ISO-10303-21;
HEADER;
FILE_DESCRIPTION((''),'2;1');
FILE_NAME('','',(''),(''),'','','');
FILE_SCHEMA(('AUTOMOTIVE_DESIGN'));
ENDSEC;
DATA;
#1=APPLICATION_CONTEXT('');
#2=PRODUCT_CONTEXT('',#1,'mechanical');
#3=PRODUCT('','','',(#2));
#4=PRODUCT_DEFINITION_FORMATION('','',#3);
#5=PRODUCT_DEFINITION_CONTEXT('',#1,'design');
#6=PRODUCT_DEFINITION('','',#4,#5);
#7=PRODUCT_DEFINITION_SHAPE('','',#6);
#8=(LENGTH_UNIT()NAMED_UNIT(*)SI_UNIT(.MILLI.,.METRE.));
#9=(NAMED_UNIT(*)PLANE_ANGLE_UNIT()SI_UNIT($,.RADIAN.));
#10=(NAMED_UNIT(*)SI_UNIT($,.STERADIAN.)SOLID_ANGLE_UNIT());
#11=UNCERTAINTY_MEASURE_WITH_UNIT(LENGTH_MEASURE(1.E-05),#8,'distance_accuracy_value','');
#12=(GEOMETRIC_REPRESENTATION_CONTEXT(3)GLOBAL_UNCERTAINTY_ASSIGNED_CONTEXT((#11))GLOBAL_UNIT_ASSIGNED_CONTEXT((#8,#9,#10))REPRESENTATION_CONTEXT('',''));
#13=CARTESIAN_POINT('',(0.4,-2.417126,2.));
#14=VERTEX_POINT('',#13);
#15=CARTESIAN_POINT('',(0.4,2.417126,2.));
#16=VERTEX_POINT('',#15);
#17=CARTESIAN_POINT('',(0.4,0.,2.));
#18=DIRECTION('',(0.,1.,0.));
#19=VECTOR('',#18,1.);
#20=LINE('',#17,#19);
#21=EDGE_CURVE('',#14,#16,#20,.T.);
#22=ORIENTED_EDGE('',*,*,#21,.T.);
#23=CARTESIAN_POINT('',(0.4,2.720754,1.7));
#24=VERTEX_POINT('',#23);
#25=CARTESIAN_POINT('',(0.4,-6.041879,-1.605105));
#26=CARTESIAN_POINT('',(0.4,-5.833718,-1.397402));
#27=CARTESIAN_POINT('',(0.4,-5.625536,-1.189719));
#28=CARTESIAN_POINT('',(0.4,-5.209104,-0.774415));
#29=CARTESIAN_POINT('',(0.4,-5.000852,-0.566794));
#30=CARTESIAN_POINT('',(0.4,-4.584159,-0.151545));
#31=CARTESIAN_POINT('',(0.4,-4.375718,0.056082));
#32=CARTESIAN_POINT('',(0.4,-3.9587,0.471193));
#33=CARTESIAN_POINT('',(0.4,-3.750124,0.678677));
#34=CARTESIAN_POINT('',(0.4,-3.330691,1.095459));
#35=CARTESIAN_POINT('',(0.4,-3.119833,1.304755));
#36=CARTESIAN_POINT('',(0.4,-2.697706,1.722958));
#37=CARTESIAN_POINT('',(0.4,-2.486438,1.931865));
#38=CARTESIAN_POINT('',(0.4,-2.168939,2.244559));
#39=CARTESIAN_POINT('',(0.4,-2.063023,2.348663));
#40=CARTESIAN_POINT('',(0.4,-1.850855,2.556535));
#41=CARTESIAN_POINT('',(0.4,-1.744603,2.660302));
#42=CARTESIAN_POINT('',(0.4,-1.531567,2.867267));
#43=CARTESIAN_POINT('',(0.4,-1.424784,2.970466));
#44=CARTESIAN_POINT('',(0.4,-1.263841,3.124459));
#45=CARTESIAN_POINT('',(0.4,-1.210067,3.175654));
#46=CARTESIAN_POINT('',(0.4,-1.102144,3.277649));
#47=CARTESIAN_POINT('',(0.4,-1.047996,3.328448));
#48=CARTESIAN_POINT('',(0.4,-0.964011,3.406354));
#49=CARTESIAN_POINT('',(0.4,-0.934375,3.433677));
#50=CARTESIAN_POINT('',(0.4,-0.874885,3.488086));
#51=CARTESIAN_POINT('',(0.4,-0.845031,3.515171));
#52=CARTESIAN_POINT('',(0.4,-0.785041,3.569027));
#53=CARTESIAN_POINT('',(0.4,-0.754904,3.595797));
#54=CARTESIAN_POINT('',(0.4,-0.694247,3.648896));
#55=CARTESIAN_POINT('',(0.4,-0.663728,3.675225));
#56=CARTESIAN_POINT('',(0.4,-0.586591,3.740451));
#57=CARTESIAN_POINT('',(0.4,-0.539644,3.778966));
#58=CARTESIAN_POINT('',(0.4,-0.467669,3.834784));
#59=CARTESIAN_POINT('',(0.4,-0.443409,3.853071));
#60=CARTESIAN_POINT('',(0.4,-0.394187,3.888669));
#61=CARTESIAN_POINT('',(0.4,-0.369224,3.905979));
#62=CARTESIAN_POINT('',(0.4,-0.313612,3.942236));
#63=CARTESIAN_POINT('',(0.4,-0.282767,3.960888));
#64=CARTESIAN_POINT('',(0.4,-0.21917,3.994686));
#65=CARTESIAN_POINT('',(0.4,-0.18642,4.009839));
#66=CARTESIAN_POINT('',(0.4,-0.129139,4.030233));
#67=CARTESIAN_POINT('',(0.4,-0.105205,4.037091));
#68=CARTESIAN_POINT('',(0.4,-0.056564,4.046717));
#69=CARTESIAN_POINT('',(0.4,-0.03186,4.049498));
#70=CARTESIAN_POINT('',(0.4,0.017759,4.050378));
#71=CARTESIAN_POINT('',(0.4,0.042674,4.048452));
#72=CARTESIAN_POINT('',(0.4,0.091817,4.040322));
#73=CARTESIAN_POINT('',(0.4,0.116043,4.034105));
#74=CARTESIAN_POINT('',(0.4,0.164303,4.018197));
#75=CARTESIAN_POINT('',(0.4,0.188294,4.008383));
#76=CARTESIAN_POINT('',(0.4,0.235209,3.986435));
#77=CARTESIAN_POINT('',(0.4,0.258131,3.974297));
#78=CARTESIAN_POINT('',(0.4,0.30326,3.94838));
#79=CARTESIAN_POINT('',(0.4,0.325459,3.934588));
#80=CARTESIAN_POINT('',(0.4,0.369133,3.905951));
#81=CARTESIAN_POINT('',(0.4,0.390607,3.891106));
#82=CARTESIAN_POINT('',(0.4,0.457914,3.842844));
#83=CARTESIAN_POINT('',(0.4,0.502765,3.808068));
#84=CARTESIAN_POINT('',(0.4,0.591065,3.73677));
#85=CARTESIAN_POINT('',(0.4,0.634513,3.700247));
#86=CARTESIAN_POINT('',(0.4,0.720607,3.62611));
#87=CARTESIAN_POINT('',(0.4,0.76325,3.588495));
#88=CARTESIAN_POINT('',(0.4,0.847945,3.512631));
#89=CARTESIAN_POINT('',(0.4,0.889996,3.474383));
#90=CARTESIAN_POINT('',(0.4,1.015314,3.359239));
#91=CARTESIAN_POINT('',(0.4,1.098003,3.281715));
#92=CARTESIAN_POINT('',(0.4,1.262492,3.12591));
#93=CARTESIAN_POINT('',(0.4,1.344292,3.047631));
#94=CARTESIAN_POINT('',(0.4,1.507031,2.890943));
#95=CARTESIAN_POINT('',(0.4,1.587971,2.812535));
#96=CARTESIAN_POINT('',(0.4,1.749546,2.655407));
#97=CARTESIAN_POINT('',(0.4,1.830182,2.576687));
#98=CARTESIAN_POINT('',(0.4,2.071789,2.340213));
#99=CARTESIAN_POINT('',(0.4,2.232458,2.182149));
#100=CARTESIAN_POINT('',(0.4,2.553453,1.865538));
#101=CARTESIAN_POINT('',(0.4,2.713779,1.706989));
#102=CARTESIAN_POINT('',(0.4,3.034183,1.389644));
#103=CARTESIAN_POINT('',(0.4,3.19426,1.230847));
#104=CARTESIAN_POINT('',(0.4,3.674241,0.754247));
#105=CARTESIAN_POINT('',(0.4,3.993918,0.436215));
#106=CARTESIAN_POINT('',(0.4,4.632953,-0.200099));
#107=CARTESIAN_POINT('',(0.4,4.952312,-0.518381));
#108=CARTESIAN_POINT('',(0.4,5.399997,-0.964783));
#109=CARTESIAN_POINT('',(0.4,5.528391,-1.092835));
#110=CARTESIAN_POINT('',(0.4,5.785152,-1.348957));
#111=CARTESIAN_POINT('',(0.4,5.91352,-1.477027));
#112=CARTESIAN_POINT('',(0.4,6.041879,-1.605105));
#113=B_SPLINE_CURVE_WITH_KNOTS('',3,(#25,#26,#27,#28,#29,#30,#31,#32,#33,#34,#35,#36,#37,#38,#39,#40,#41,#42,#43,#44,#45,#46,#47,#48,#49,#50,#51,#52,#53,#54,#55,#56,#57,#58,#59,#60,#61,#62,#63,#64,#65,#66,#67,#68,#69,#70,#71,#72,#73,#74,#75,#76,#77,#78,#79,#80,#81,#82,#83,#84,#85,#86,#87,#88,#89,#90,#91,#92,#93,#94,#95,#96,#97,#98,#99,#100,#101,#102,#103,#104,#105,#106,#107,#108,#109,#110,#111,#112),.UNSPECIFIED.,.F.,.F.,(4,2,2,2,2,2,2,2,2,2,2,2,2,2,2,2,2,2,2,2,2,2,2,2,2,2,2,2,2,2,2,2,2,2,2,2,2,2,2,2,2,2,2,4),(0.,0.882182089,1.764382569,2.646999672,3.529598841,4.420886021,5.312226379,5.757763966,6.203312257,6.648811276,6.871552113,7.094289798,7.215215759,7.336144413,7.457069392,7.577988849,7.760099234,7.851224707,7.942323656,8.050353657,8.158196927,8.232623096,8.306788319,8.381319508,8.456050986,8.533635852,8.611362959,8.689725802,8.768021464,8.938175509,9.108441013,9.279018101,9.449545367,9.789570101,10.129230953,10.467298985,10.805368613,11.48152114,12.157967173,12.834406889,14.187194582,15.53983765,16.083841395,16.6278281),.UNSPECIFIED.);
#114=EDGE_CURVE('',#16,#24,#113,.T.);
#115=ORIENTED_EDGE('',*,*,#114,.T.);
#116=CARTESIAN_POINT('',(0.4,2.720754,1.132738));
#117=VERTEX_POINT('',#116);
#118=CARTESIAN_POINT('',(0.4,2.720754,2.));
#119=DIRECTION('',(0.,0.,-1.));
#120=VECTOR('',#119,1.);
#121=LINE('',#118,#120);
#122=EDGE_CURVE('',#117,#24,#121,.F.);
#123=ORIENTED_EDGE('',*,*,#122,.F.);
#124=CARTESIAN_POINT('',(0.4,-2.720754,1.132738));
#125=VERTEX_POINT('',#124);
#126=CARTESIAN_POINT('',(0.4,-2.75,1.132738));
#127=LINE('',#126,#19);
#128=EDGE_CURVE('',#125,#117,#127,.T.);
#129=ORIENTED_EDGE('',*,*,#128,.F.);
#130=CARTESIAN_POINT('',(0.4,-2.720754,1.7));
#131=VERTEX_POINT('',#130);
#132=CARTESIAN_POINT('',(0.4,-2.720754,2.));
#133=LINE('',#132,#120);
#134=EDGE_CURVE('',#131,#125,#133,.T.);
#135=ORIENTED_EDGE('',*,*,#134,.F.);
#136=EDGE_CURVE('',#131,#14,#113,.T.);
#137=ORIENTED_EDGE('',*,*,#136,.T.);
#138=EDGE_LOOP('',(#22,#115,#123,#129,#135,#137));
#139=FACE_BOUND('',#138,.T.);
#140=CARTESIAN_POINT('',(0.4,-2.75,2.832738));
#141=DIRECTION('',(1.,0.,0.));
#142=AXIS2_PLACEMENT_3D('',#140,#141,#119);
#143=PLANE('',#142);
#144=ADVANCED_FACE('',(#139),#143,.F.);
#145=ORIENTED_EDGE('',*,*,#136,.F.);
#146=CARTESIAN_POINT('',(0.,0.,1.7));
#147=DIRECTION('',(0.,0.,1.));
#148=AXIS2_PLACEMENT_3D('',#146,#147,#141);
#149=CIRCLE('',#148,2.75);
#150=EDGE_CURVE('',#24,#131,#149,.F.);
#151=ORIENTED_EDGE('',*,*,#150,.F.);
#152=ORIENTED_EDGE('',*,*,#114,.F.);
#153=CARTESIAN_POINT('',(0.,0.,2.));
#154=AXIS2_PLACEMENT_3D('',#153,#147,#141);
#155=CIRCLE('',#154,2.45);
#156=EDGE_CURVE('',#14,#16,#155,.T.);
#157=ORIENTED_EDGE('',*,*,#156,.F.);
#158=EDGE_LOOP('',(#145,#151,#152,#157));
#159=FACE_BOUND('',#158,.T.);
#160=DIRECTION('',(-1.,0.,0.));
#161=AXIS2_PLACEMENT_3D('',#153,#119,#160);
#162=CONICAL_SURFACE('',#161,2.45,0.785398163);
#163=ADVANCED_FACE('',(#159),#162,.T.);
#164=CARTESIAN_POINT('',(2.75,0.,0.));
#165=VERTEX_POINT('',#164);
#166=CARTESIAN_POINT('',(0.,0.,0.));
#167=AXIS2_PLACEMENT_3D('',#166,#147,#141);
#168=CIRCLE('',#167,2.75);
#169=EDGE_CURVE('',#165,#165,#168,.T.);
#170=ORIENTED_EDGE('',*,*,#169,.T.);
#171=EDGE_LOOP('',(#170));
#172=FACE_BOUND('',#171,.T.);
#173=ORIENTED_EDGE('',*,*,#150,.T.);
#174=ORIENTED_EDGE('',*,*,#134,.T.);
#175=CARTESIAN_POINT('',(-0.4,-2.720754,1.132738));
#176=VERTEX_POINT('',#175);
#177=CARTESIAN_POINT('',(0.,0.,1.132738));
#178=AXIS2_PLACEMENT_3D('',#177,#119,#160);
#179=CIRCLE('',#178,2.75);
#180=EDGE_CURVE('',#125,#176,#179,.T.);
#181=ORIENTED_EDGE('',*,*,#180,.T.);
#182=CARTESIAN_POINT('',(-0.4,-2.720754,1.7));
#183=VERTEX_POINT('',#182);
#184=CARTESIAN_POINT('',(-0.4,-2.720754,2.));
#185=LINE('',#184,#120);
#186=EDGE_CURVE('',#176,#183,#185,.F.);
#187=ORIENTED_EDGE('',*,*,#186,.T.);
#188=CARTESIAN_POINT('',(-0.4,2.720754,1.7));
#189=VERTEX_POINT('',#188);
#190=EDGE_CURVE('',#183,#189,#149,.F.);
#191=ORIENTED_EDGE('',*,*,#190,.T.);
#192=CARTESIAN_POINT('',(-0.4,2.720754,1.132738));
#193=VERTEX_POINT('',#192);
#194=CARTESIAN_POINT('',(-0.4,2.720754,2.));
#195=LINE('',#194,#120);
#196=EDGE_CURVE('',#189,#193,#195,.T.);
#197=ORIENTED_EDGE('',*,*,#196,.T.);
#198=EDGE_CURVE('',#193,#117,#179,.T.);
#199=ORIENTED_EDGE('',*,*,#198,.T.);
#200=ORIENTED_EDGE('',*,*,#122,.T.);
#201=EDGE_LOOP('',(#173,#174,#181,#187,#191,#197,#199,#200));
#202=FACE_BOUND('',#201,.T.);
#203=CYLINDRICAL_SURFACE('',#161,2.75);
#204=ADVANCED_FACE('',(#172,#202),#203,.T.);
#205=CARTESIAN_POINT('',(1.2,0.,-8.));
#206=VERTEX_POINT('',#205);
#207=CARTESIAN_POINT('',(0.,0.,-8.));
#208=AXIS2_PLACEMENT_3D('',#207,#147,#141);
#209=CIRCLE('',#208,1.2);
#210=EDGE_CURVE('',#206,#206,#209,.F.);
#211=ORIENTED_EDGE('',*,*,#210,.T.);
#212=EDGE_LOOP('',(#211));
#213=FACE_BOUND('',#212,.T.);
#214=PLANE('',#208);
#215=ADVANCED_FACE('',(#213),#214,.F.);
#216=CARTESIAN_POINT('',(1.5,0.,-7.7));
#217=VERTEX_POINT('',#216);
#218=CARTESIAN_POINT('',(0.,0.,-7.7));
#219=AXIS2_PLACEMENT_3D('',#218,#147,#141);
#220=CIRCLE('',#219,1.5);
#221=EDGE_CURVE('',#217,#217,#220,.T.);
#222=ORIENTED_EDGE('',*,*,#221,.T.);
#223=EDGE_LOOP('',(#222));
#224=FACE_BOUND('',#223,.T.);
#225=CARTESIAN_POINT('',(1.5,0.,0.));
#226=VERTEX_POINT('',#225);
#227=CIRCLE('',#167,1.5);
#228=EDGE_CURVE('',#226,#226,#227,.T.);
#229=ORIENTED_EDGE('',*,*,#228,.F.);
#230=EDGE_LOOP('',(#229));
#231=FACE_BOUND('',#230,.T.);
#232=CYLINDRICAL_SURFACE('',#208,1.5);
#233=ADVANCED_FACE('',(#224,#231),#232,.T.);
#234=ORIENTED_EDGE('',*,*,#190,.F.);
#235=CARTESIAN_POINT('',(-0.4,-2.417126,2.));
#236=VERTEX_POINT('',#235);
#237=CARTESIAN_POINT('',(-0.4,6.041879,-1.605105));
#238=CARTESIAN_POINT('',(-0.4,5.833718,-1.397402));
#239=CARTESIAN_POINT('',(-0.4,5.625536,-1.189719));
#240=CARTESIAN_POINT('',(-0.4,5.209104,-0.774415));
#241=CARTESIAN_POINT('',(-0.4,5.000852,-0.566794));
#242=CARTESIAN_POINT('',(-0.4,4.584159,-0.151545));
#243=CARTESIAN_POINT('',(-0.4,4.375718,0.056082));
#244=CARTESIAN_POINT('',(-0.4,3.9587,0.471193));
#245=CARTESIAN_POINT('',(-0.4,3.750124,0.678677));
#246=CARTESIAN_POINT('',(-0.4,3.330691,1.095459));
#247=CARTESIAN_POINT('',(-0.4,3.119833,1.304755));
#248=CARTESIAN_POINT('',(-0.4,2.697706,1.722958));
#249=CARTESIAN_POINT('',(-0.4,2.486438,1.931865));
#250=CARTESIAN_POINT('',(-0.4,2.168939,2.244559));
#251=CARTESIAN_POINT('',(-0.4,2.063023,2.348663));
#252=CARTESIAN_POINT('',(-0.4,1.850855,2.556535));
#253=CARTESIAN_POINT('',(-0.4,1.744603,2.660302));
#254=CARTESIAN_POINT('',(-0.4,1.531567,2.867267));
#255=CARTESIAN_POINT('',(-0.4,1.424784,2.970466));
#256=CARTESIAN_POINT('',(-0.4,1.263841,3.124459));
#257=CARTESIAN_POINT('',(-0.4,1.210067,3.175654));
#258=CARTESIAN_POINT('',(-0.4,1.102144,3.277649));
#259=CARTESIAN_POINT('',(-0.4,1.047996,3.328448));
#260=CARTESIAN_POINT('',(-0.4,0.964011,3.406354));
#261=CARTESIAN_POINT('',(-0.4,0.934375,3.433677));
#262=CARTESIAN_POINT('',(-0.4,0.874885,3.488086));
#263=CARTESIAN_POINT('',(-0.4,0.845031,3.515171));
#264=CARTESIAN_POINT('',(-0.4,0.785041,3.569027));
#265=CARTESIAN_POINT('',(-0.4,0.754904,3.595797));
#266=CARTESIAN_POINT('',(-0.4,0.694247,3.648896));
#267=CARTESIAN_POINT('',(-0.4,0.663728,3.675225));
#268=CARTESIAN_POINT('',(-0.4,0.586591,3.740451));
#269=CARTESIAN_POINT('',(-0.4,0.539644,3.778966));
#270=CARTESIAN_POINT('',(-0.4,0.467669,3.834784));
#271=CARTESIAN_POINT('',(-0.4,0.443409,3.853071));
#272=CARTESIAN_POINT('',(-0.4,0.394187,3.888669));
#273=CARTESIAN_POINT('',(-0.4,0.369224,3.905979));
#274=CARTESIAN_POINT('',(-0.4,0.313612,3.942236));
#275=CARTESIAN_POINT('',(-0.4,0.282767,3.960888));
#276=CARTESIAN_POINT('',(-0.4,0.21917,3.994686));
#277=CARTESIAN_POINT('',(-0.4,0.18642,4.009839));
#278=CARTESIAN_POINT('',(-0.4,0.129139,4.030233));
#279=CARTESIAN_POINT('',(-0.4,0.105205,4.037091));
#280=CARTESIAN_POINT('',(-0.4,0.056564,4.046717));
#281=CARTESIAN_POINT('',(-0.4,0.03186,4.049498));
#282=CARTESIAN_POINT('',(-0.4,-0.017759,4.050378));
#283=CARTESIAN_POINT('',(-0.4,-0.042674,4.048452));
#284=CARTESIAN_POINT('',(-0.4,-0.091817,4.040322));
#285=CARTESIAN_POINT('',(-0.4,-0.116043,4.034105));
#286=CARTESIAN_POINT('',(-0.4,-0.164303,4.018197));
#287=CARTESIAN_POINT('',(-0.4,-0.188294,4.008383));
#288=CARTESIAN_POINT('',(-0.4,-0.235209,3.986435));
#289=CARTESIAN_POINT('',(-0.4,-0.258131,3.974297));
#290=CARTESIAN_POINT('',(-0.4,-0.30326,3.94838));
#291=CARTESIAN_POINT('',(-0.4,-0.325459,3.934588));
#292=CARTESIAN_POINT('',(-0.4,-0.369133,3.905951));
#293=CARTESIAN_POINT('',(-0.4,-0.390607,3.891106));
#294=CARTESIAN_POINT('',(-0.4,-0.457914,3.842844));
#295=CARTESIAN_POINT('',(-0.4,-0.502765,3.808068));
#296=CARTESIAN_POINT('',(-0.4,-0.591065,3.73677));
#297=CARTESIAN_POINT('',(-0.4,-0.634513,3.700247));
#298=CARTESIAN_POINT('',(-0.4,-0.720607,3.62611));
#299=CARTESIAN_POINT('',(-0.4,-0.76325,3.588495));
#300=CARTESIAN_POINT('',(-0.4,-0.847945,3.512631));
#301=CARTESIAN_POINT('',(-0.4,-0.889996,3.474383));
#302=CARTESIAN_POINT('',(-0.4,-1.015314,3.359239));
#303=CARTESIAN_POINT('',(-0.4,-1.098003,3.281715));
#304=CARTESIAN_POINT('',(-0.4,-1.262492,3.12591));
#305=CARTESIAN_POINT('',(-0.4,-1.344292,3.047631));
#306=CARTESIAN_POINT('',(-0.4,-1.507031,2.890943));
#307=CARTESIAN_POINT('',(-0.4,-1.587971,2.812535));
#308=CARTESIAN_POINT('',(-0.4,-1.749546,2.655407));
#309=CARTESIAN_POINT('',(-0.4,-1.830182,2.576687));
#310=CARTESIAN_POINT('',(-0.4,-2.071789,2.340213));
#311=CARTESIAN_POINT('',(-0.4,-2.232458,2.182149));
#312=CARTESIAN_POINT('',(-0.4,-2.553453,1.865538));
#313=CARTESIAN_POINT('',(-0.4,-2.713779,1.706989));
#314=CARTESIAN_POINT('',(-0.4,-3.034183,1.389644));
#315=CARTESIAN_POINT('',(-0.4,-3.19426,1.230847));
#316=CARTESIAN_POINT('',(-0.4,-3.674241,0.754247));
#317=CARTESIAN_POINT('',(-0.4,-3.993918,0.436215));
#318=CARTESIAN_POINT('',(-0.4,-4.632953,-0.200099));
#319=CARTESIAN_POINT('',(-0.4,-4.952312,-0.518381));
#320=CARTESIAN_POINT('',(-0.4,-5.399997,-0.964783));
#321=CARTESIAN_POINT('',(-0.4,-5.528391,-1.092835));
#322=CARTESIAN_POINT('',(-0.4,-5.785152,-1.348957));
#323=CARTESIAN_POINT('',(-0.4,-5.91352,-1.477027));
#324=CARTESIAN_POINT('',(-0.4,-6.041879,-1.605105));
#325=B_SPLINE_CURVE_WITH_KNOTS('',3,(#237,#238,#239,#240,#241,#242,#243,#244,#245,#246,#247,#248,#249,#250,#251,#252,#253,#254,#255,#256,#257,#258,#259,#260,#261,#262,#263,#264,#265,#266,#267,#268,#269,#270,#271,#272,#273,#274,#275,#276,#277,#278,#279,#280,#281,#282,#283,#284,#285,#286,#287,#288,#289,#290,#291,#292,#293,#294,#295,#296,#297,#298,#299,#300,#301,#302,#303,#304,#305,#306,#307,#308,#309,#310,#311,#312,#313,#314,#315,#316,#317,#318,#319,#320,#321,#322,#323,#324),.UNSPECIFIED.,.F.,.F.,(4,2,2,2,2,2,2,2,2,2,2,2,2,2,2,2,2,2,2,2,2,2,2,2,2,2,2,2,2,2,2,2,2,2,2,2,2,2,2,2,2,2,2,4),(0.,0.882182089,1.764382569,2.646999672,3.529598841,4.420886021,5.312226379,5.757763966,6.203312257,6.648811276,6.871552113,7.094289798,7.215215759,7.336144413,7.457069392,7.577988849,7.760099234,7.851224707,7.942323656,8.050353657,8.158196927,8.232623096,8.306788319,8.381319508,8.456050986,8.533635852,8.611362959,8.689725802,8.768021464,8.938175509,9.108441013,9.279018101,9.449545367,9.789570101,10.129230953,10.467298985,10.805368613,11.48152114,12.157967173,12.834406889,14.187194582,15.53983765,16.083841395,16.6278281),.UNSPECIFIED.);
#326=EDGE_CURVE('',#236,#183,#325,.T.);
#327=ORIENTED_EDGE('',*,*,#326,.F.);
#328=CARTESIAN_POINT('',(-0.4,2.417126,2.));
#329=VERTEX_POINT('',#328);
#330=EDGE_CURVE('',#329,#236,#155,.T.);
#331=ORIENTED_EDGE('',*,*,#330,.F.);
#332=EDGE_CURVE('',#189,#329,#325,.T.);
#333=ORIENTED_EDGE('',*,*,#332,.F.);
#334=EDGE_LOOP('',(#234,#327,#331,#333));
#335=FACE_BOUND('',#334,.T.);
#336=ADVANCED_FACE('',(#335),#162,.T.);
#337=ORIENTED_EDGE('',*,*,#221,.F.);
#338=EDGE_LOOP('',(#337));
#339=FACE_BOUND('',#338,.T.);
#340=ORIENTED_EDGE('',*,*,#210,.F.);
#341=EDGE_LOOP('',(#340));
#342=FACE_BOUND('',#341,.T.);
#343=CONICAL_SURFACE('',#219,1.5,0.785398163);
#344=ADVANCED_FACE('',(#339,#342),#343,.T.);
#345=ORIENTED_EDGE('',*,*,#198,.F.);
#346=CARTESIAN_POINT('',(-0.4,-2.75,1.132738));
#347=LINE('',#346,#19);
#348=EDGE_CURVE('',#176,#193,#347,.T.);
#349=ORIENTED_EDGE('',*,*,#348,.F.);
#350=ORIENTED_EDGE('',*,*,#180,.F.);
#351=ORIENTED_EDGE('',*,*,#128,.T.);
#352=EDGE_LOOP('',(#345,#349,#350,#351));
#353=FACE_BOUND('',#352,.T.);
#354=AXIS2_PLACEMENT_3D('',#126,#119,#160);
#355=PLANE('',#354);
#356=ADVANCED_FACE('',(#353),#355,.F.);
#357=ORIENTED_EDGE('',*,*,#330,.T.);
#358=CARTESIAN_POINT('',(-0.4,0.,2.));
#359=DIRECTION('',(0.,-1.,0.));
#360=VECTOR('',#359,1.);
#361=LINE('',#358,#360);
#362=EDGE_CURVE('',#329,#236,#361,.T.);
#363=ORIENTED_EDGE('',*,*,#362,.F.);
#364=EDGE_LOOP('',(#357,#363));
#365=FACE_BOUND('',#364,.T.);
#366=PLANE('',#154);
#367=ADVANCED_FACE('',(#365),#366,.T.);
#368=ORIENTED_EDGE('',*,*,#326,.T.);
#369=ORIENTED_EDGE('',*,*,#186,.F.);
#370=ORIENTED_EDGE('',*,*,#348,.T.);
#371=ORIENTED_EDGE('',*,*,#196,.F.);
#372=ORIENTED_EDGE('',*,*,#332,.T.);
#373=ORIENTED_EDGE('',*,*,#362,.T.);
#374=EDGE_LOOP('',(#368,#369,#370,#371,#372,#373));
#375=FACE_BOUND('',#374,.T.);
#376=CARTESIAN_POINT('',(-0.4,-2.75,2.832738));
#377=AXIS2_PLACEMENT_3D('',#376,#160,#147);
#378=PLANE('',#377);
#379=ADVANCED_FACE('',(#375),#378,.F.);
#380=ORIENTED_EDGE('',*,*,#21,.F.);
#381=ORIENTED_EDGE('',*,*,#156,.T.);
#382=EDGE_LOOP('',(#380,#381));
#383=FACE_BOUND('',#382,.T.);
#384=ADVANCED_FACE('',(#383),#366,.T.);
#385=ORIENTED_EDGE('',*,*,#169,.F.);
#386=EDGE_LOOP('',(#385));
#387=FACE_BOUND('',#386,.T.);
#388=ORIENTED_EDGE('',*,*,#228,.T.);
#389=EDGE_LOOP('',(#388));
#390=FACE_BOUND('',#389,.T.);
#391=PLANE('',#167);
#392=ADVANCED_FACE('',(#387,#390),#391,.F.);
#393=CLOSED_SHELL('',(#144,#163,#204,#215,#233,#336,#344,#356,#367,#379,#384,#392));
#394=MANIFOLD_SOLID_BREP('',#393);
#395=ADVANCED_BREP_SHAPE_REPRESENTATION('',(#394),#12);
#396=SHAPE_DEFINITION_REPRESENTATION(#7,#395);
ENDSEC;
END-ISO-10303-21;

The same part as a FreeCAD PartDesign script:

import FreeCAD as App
import Part
import Sketcher

V = App.Vector


def edges_at(feature, points):
    """Names of the edges that pass closest to the given points."""
    edges = feature.Shape.Edges
    near = lambda p: min(range(len(edges)), key=lambda i: edges[i].distToShape(Part.Vertex(*p))[0])
    return sorted({f"Edge{near(p) + 1}" for p in points})

doc = App.newDocument("Part")
body = doc.addObject("PartDesign::Body", "Body")

# Sketch on XY plane
sketch1 = body.newObject("Sketcher::SketchObject", "Sketch")
sketch1.AttachmentSupport = (doc.getObject("XY_Plane"), [""])
sketch1.MapMode = "FlatFace"
sketch1.addGeometry(Part.Circle(V(0, 0, 0), V(0, 0, 1), 1.5), False)
sketch1.addConstraint([
    Sketcher.Constraint("Coincident", 0, 3, -1, 1),
    Sketcher.Constraint("Diameter", 0, 3.0),
])
pad1 = body.newObject("PartDesign::Pad", "Pad")
pad1.Profile = sketch1
pad1.Length = 8
pad1.Reversed = True

# Sketch on XY plane
sketch2 = body.newObject("Sketcher::SketchObject", "Sketch001")
sketch2.AttachmentSupport = (doc.getObject("XY_Plane"), [""])
sketch2.MapMode = "FlatFace"
sketch2.addGeometry(Part.Circle(V(0, 0, 0), V(0, 0, 1), 2.8), False)
sketch2.addConstraint([
    Sketcher.Constraint("Coincident", 0, 3, -1, 1),
    Sketcher.Constraint("Diameter", 0, 5.5),
])
pad2 = body.newObject("PartDesign::Pad", "Pad001")
pad2.Profile = sketch2
pad2.Length = 2
doc.recompute()

chamfer = body.newObject("PartDesign::Chamfer", "Chamfer")
chamfer.Base = (pad2, edges_at(pad2, [(-1.5, 0, -8), (-2.75, 0, 2)]))
chamfer.Size = 0.3

# Sketch on XZ plane
sketch3 = body.newObject("Sketcher::SketchObject", "Sketch002")
sketch3.AttachmentSupport = (doc.getObject("XZ_Plane"), [""])
sketch3.MapMode = "FlatFace"
sketch3.addGeometry([
    Part.LineSegment(V(-0.4, 1.1, 0), V(-0.4, 2.8, 0)),
    Part.LineSegment(V(-0.4, 2.8, 0), V(0.4, 2.8, 0)),
    Part.LineSegment(V(0.4, 2.8, 0), V(0.4, 1.1, 0)),
    Part.LineSegment(V(0.4, 1.1, 0), V(-0.4, 1.1, 0)),
], False)
sketch3.addConstraint([
    Sketcher.Constraint("Coincident", 0, 2, 1, 1),
    Sketcher.Constraint("Coincident", 1, 2, 2, 1),
    Sketcher.Constraint("Coincident", 2, 2, 3, 1),
    Sketcher.Constraint("Coincident", 3, 2, 0, 1),
    Sketcher.Constraint("Vertical", 0),
    Sketcher.Constraint("Horizontal", 1),
    Sketcher.Constraint("Vertical", 2),
    Sketcher.Constraint("Horizontal", 3),
    Sketcher.Constraint("DistanceX", 1, 1, 1, 2, 0.8),
    Sketcher.Constraint("DistanceY", 0, 1, 0, 2, 1.7),
    Sketcher.Constraint("DistanceX", 0, 2, -1, 1, 0.4),
    Sketcher.Constraint("DistanceY", -1, 1, 0, 2, 2.832738),
])
pocket1 = body.newObject("PartDesign::Pocket", "Pocket")
pocket1.Profile = sketch3
pocket1.Type = "ThroughAll"
pocket1.Midplane = True

doc.recompute()
